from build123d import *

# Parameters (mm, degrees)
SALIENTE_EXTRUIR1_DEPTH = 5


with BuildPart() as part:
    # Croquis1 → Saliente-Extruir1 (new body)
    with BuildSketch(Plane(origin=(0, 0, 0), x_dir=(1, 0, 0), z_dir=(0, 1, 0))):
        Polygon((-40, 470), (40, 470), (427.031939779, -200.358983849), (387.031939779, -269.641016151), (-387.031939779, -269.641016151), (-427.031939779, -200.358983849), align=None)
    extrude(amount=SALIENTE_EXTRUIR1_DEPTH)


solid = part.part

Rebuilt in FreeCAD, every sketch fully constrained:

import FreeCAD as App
import Part
import Sketcher
from FreeCAD import Vector
Q = App.Units.Quantity


def add_polygon(sketch, points):
    """Adds a closed chain of lines whose ends are joined by coincident constraints."""
    first, n = sketch.GeometryCount, len(points)
    for a, b in zip(points, points[1:] + points[:1]):
        sketch.addGeometry(Part.LineSegment(App.Vector(*a, 0), App.Vector(*b, 0)), False)
    for i in range(n):
        sketch.addConstraint(Sketcher.Constraint("Coincident", first + i, 2, first + (i + 1) % n, 1))

doc = App.newDocument("Part")
body = doc.addObject("PartDesign::Body", "Body")

sketch1 = doc.addObject("Sketcher::SketchObject", "Sketch")
body.addObject(sketch1)
sketch1.AttachmentSupport = (doc.XZ_Plane, [""])
sketch1.MapMode = "FlatFace"
add_polygon(sketch1, [(40, -470), (-40, -470), (-427.03194, 200.358984), (-387.03194, 269.641016), (387.03194, 269.641016), (427.03194, 200.358984)])
sketch1.addConstraint([
    Sketcher.Constraint("Horizontal", 0),
    Sketcher.Constraint("Horizontal", 3),
    Sketcher.Constraint("Symmetric", 1, 2, 4, 2, -2),
    Sketcher.Constraint("Parallel", 1, 4),
    Sketcher.Constraint("Parallel", 2, 5),
    Sketcher.Constraint("Equal", 2, 4),
    Sketcher.Constraint("DistanceX", 0, 2, 0, 1, 80.0),
    Sketcher.Constraint("Angle", 1, Q("120 deg")),
    Sketcher.Constraint("Distance", 2, 80.0),
    Sketcher.Constraint("DistanceY", 0, 2, -1, 1, 470.0),
    Sketcher.Constraint("DistanceX", 3, 1, 3, 2, 774.06388),
])
pad1 = doc.addObject("PartDesign::Pad", "Pad")
body.addObject(pad1)
pad1.Profile = sketch1
pad1.Length = 5
pad1.Reversed = True

doc.recompute()
